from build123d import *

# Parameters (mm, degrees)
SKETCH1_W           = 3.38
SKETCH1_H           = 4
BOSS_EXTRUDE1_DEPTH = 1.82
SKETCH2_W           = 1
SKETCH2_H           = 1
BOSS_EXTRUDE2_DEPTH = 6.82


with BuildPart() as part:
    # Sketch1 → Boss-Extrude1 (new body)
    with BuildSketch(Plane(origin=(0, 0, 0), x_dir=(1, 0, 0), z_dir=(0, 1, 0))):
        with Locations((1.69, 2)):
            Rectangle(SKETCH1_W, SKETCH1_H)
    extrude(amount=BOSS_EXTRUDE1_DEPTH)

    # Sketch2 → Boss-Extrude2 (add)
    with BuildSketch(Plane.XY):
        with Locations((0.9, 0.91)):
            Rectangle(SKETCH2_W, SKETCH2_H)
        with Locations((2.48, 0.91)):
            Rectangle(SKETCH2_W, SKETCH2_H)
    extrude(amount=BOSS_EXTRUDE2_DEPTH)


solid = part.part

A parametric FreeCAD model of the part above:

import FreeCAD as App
import Part
import Sketcher

V = App.Vector


def add_polygon(sketch, points):
    """Adds a closed chain of lines whose ends are joined by coincident constraints."""
    first, n = sketch.GeometryCount, len(points)
    for a, b in zip(points, points[1:] + points[:1]):
        sketch.addGeometry(Part.LineSegment(App.Vector(*a, 0), App.Vector(*b, 0)), False)
    for i in range(n):
        sketch.addConstraint(Sketcher.Constraint("Coincident", first + i, 2, first + (i + 1) % n, 1))

doc = App.newDocument("Part")
params = doc.addObject("Spreadsheet::Sheet", "Params")
for row, (alias, value) in enumerate([
    ("sketch1_height", "4 mm"),
    ("sketch1_width", "3.38 mm"),
    ("pad1_length", "1.82 mm"),
    ("sketch2_width", "1 mm"),
    ("pad2_length", "6.82 mm"),
], start=1):
    params.set(f"A{row}", alias)
    params.set(f"B{row}", "=" + value)
    params.setAlias(f"B{row}", alias)

body = doc.addObject("PartDesign::Body", "Body")

sketch1 = body.newObject("Sketcher::SketchObject", "Sketch")
sketch1.AttachmentSupport = (doc.getObject("XZ_Plane"), [""])
sketch1.MapMode = "FlatFace"
add_polygon(sketch1, [(0, -4), (0, 0), (3.4, 0), (3.4, -4)])
sketch1.addConstraint([
    Sketcher.Constraint("Vertical", 0),
    Sketcher.Constraint("Horizontal", 1),
    Sketcher.Constraint("Vertical", 2),
    Sketcher.Constraint("Horizontal", 3),
    Sketcher.Constraint("Coincident", 0, 2, -1, 1),
    Sketcher.Constraint("DistanceY", 0, 1, 0, 2, 4.0),
    Sketcher.Constraint("DistanceX", 1, 1, 1, 2, 3.38),
])
sketch1.setExpression("Constraints[9]", "Params.sketch1_height")
sketch1.setExpression("Constraints[10]", "Params.sketch1_width")
pad1 = body.newObject("PartDesign::Pad", "Pad")
pad1.Profile = sketch1
pad1.setExpression("Length", "Params.pad1_length")
pad1.Reversed = True

sketch2 = body.newObject("Sketcher::SketchObject", "Sketch001")
sketch2.AttachmentSupport = (doc.getObject("XY_Plane"), [""])
sketch2.MapMode = "FlatFace"
add_polygon(sketch2, [(0.4, 1.4), (0.4, 0.4), (1.4, 0.4), (1.4, 1.4)])
add_polygon(sketch2, [(2, 1.4), (2, 0.4), (3, 0.4), (3, 1.4)])
sketch2.addConstraint([
    Sketcher.Constraint("Vertical", 0),
    Sketcher.Constraint("Horizontal", 1),
    Sketcher.Constraint("Vertical", 2),
    Sketcher.Constraint("Horizontal", 3),
    Sketcher.Constraint("Vertical", 4),
    Sketcher.Constraint("Horizontal", 5),
    Sketcher.Constraint("Vertical", 6),
    Sketcher.Constraint("Horizontal", 7),
    Sketcher.Constraint("Horizontal", 1, 2, 4, 2),
    Sketcher.Constraint("Horizontal", 3, 2, 6, 2),
    Sketcher.Constraint("Equal", 3, 5),
    Sketcher.Constraint("Equal", 7, 0),
    Sketcher.Constraint("DistanceX", 1, 1, 1, 2, 1.0),
    Sketcher.Constraint("DistanceX", -1, 1, 0, 2, 0.4),
    Sketcher.Constraint("DistanceY", -1, 1, 0, 2, 0.41),
    Sketcher.Constraint("DistanceX", -1, 1, 4, 2, 1.98),
])
sketch2.setExpression("Constraints[20]", "Params.sketch2_width")
pad2 = body.newObject("PartDesign::Pad", "Pad001")
pad2.Profile = sketch2
pad2.setExpression("Length", "Params.pad2_length")

doc.recompute()
